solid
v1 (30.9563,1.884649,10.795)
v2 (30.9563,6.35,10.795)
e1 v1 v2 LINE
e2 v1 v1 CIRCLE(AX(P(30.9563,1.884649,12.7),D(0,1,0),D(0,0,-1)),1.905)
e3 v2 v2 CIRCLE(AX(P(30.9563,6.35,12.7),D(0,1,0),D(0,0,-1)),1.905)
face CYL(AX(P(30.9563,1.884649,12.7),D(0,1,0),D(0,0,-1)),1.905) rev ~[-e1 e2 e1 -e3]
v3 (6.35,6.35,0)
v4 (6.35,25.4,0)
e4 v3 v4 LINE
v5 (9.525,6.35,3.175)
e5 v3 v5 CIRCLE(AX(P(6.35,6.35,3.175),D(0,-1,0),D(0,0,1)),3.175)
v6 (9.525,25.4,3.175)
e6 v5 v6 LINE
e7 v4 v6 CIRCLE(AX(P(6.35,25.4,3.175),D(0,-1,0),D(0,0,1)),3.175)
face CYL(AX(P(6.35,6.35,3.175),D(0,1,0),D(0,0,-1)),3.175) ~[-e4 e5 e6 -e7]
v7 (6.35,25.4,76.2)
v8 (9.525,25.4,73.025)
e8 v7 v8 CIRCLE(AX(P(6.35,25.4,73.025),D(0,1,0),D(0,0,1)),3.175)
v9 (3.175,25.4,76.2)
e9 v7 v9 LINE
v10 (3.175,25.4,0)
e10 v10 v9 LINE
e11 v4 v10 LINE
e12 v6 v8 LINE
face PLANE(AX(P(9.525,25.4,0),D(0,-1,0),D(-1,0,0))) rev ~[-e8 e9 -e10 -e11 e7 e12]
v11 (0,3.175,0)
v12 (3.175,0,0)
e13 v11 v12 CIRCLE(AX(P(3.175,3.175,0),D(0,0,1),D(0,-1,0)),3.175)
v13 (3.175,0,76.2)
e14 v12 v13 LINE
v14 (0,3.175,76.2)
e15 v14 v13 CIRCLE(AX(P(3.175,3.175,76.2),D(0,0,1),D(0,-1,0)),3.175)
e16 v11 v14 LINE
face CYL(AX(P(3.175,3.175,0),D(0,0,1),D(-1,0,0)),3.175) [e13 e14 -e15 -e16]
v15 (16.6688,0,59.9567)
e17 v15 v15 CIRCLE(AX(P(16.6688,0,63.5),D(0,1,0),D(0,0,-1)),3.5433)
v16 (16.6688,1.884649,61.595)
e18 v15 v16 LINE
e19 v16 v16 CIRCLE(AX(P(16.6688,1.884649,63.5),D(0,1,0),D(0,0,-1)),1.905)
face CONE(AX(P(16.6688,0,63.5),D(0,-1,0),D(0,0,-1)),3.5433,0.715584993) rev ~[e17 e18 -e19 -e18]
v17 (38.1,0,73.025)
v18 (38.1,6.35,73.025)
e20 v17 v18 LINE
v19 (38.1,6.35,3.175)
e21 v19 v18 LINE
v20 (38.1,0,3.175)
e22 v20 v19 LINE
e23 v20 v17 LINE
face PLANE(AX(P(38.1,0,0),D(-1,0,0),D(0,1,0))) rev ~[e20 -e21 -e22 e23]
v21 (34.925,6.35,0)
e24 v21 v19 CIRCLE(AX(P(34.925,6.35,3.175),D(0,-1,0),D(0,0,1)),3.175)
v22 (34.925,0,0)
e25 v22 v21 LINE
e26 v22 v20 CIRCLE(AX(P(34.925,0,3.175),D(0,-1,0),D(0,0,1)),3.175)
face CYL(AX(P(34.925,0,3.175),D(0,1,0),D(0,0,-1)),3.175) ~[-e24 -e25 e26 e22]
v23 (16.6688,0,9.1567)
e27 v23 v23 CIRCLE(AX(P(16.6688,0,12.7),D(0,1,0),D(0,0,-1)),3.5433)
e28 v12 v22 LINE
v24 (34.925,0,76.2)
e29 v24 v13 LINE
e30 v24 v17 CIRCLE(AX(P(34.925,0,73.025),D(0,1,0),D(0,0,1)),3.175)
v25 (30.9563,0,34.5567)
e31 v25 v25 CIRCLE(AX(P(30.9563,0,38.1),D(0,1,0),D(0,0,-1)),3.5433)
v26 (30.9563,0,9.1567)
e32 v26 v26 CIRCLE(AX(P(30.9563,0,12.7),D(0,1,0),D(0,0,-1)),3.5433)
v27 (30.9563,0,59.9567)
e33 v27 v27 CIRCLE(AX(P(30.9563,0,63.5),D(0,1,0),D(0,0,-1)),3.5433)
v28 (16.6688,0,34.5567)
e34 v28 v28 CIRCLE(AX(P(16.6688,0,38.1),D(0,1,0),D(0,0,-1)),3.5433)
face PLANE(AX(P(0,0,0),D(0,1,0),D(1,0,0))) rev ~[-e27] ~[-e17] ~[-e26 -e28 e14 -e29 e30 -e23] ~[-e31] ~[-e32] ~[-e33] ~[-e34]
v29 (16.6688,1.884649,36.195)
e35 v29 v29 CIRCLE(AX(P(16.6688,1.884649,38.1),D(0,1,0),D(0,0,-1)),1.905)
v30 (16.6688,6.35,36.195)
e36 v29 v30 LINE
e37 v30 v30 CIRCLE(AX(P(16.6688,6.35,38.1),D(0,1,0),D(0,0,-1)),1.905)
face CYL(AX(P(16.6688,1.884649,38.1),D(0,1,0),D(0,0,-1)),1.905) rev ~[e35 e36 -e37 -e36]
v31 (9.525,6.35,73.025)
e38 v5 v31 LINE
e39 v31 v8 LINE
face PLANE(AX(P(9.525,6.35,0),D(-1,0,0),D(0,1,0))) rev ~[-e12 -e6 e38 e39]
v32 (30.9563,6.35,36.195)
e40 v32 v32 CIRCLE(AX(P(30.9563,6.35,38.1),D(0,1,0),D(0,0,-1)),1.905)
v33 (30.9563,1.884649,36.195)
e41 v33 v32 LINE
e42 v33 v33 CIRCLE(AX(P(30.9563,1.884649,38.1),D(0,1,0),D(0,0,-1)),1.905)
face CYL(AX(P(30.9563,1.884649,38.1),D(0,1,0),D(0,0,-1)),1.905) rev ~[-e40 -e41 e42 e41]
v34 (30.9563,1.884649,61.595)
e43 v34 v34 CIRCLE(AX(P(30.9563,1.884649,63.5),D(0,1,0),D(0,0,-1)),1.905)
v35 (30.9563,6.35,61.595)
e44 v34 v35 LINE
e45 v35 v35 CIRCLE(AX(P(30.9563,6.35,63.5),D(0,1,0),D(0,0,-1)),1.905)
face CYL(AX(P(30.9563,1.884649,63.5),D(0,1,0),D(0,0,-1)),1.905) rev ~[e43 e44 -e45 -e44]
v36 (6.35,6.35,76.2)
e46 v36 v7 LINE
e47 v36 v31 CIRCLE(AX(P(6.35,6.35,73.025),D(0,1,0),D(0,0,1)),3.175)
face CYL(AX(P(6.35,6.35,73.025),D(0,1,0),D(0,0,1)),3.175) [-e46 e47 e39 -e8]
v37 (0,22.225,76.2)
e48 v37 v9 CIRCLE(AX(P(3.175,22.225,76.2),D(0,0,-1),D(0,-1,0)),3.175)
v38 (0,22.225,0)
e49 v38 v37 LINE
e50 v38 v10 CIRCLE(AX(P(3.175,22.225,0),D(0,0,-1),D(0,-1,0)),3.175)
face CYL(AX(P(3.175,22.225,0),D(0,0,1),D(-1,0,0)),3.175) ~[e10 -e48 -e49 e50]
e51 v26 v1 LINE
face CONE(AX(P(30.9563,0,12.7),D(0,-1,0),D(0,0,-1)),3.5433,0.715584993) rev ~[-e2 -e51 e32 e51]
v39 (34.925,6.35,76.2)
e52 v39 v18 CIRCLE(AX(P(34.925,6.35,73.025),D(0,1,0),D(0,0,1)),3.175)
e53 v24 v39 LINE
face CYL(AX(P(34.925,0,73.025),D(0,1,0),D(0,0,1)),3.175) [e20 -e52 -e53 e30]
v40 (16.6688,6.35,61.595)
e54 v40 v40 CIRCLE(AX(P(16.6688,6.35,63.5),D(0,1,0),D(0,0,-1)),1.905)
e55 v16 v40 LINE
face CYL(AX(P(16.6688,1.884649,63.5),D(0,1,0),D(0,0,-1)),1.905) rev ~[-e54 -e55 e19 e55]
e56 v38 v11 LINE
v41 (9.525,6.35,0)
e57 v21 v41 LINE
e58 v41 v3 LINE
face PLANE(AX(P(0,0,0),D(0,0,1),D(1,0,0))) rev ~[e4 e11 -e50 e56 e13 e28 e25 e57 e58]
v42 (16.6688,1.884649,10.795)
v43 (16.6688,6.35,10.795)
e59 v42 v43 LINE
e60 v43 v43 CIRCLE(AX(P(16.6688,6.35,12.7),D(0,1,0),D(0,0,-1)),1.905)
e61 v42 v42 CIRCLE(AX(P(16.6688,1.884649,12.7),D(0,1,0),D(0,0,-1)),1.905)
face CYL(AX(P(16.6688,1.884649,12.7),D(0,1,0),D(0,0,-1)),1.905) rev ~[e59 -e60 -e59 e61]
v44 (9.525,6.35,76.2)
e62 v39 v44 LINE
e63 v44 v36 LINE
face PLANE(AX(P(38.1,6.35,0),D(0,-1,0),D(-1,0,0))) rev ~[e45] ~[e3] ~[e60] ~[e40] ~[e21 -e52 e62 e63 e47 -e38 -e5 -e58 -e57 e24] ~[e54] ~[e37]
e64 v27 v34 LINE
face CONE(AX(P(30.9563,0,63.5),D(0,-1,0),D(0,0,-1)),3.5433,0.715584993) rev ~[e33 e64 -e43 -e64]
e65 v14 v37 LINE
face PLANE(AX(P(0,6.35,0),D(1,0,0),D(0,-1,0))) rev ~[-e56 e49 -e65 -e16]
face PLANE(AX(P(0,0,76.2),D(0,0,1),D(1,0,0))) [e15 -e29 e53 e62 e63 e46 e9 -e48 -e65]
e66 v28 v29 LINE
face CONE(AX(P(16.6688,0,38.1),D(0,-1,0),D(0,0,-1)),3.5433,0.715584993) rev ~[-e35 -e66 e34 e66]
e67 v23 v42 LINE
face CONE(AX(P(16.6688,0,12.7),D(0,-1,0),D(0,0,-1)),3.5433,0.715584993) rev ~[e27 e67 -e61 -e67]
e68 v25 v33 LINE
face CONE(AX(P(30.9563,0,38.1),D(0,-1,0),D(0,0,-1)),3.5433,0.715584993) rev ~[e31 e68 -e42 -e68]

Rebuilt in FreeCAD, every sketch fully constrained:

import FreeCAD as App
import Part
import Sketcher

V = App.Vector
Q = App.Units.Quantity


def edges_at(feature, points):
    """Names of the edges that pass closest to the given points."""
    edges = feature.Shape.Edges
    near = lambda p: min(range(len(edges)), key=lambda i: edges[i].distToShape(Part.Vertex(*p))[0])
    return sorted({f"Edge{near(p) + 1}" for p in points})


def add_polygon(sketch, points):
    """Adds a closed chain of lines whose ends are joined by coincident constraints."""
    first, n = sketch.GeometryCount, len(points)
    for a, b in zip(points, points[1:] + points[:1]):
        sketch.addGeometry(Part.LineSegment(App.Vector(*a, 0), App.Vector(*b, 0)), False)
    for i in range(n):
        sketch.addConstraint(Sketcher.Constraint("Coincident", first + i, 2, first + (i + 1) % n, 1))

doc = App.newDocument("Part")
body = doc.addObject("PartDesign::Body", "Body")

sketch1 = body.newObject("Sketcher::SketchObject", "Sketch")
sketch1.AttachmentSupport = (doc.getObject("XY_Plane"), [""])
sketch1.MapMode = "FlatFace"
add_polygon(sketch1, [(0, 0), (38.1, 0), (38.1, 6.35), (9.525, 6.35), (9.525, 25.4), (0, 25.4)])
sketch1.addConstraint([
    Sketcher.Constraint("Horizontal", 0),
    Sketcher.Constraint("Vertical", 1),
    Sketcher.Constraint("Horizontal", 2),
    Sketcher.Constraint("Vertical", 3),
    Sketcher.Constraint("Horizontal", 4),
    Sketcher.Constraint("Vertical", 5),
    Sketcher.Constraint("Coincident", 5, 2, -1, 1),
    Sketcher.Constraint("DistanceY", 5, 2, 5, 1, Q("1 in")),
    Sketcher.Constraint("DistanceX", 0, 1, 0, 2, Q("1.5 in")),
    Sketcher.Constraint("DistanceY", 1, 1, 1, 2, Q("0.25 in")),
    Sketcher.Constraint("DistanceX", 4, 2, 4, 1, Q("0.375 in")),
])
pad1 = body.newObject("PartDesign::Pad", "Pad")
pad1.Profile = sketch1
pad1.Length = Q("3 in")

sketch2 = body.newObject("Sketcher::SketchObject", "Sketch001")
sketch2.AttachmentSupport = (doc.getObject("XZ_Plane"), [""])
sketch2.MapMode = "FlatFace"
sketch2.addGeometry([
    Part.Circle(V(30.9563, 63.5, 0), V(0, 0, 1), 1.905),
    Part.Circle(V(30.9563, 38.1, 0), V(0, 0, 1), 1.905),
    Part.Circle(V(30.9563, 12.7, 0), V(0, 0, 1), 1.905),
    Part.Circle(V(16.6688, 63.5, 0), V(0, 0, 1), 1.905),
    Part.Circle(V(16.6688, 38.1, 0), V(0, 0, 1), 1.905),
    Part.Circle(V(16.6688, 12.7, 0), V(0, 0, 1), 1.905),
], False)
sketch2.addConstraint([
    Sketcher.Constraint("Equal", 0, 1),
    Sketcher.Constraint("Equal", 1, 2),
    Sketcher.Constraint("Equal", 2, 3),
    Sketcher.Constraint("Equal", 3, 4),
    Sketcher.Constraint("Equal", 4, 5),
    Sketcher.Constraint("Horizontal", 0, 3, 3, 3),
    Sketcher.Constraint("Horizontal", 1, 3, 4, 3),
    Sketcher.Constraint("Horizontal", 2, 3, 5, 3),
    Sketcher.Constraint("Vertical", 0, 3, 1, 3),
    Sketcher.Constraint("Vertical", 1, 3, 2, 3),
    Sketcher.Constraint("Vertical", 3, 3, 4, 3),
    Sketcher.Constraint("Vertical", 4, 3, 5, 3),
    Sketcher.Constraint("Diameter", 0, Q("0.15 in")),
    Sketcher.Constraint("DistanceY", 1, 3, 0, 3, Q("1 in")),
    Sketcher.Constraint("DistanceY", 2, 3, 1, 3, Q("1 in")),
    Sketcher.Constraint("DistanceY", -1, 1, 0, 3, Q("2.5 in")),
    Sketcher.Constraint("DistanceX", -1, 1, 0, 3, Q("1.218752 in")),
    Sketcher.Constraint("DistanceX", -1, 1, 3, 3, Q("0.656252 in")),
])
doc.recompute()
hole = body.newObject("PartDesign::Hole", "Hole")
hole.Profile = sketch2
hole.ThreadType = "None"
hole.Diameter = Q("0.15 in")
hole.DepthType = "ThroughAll"
hole.HoleCutType = "Countersink"
hole.HoleCutDiameter = Q("0.279 in")
hole.HoleCutCountersinkAngle = 82
doc.recompute()

fillet = body.newObject("PartDesign::Fillet", "Fillet")
fillet.Base = (hole, edges_at(hole, [
    (9.525, 15.875, 76.2),
    (9.525, 15.875, 0),
    (38.1, 3.175, 76.2),
    (38.1, 3.175, 0),
    (0, 0, 38.1),
]))
fillet.Radius = Q("0.125 in")
doc.recompute()

fillet2 = body.newObject("PartDesign::Fillet", "Fillet001")
fillet2.Base = (fillet, edges_at(fillet, [(0, 25.4, 38.1)]))
fillet2.Radius = Q("0.125 in")

doc.recompute()
